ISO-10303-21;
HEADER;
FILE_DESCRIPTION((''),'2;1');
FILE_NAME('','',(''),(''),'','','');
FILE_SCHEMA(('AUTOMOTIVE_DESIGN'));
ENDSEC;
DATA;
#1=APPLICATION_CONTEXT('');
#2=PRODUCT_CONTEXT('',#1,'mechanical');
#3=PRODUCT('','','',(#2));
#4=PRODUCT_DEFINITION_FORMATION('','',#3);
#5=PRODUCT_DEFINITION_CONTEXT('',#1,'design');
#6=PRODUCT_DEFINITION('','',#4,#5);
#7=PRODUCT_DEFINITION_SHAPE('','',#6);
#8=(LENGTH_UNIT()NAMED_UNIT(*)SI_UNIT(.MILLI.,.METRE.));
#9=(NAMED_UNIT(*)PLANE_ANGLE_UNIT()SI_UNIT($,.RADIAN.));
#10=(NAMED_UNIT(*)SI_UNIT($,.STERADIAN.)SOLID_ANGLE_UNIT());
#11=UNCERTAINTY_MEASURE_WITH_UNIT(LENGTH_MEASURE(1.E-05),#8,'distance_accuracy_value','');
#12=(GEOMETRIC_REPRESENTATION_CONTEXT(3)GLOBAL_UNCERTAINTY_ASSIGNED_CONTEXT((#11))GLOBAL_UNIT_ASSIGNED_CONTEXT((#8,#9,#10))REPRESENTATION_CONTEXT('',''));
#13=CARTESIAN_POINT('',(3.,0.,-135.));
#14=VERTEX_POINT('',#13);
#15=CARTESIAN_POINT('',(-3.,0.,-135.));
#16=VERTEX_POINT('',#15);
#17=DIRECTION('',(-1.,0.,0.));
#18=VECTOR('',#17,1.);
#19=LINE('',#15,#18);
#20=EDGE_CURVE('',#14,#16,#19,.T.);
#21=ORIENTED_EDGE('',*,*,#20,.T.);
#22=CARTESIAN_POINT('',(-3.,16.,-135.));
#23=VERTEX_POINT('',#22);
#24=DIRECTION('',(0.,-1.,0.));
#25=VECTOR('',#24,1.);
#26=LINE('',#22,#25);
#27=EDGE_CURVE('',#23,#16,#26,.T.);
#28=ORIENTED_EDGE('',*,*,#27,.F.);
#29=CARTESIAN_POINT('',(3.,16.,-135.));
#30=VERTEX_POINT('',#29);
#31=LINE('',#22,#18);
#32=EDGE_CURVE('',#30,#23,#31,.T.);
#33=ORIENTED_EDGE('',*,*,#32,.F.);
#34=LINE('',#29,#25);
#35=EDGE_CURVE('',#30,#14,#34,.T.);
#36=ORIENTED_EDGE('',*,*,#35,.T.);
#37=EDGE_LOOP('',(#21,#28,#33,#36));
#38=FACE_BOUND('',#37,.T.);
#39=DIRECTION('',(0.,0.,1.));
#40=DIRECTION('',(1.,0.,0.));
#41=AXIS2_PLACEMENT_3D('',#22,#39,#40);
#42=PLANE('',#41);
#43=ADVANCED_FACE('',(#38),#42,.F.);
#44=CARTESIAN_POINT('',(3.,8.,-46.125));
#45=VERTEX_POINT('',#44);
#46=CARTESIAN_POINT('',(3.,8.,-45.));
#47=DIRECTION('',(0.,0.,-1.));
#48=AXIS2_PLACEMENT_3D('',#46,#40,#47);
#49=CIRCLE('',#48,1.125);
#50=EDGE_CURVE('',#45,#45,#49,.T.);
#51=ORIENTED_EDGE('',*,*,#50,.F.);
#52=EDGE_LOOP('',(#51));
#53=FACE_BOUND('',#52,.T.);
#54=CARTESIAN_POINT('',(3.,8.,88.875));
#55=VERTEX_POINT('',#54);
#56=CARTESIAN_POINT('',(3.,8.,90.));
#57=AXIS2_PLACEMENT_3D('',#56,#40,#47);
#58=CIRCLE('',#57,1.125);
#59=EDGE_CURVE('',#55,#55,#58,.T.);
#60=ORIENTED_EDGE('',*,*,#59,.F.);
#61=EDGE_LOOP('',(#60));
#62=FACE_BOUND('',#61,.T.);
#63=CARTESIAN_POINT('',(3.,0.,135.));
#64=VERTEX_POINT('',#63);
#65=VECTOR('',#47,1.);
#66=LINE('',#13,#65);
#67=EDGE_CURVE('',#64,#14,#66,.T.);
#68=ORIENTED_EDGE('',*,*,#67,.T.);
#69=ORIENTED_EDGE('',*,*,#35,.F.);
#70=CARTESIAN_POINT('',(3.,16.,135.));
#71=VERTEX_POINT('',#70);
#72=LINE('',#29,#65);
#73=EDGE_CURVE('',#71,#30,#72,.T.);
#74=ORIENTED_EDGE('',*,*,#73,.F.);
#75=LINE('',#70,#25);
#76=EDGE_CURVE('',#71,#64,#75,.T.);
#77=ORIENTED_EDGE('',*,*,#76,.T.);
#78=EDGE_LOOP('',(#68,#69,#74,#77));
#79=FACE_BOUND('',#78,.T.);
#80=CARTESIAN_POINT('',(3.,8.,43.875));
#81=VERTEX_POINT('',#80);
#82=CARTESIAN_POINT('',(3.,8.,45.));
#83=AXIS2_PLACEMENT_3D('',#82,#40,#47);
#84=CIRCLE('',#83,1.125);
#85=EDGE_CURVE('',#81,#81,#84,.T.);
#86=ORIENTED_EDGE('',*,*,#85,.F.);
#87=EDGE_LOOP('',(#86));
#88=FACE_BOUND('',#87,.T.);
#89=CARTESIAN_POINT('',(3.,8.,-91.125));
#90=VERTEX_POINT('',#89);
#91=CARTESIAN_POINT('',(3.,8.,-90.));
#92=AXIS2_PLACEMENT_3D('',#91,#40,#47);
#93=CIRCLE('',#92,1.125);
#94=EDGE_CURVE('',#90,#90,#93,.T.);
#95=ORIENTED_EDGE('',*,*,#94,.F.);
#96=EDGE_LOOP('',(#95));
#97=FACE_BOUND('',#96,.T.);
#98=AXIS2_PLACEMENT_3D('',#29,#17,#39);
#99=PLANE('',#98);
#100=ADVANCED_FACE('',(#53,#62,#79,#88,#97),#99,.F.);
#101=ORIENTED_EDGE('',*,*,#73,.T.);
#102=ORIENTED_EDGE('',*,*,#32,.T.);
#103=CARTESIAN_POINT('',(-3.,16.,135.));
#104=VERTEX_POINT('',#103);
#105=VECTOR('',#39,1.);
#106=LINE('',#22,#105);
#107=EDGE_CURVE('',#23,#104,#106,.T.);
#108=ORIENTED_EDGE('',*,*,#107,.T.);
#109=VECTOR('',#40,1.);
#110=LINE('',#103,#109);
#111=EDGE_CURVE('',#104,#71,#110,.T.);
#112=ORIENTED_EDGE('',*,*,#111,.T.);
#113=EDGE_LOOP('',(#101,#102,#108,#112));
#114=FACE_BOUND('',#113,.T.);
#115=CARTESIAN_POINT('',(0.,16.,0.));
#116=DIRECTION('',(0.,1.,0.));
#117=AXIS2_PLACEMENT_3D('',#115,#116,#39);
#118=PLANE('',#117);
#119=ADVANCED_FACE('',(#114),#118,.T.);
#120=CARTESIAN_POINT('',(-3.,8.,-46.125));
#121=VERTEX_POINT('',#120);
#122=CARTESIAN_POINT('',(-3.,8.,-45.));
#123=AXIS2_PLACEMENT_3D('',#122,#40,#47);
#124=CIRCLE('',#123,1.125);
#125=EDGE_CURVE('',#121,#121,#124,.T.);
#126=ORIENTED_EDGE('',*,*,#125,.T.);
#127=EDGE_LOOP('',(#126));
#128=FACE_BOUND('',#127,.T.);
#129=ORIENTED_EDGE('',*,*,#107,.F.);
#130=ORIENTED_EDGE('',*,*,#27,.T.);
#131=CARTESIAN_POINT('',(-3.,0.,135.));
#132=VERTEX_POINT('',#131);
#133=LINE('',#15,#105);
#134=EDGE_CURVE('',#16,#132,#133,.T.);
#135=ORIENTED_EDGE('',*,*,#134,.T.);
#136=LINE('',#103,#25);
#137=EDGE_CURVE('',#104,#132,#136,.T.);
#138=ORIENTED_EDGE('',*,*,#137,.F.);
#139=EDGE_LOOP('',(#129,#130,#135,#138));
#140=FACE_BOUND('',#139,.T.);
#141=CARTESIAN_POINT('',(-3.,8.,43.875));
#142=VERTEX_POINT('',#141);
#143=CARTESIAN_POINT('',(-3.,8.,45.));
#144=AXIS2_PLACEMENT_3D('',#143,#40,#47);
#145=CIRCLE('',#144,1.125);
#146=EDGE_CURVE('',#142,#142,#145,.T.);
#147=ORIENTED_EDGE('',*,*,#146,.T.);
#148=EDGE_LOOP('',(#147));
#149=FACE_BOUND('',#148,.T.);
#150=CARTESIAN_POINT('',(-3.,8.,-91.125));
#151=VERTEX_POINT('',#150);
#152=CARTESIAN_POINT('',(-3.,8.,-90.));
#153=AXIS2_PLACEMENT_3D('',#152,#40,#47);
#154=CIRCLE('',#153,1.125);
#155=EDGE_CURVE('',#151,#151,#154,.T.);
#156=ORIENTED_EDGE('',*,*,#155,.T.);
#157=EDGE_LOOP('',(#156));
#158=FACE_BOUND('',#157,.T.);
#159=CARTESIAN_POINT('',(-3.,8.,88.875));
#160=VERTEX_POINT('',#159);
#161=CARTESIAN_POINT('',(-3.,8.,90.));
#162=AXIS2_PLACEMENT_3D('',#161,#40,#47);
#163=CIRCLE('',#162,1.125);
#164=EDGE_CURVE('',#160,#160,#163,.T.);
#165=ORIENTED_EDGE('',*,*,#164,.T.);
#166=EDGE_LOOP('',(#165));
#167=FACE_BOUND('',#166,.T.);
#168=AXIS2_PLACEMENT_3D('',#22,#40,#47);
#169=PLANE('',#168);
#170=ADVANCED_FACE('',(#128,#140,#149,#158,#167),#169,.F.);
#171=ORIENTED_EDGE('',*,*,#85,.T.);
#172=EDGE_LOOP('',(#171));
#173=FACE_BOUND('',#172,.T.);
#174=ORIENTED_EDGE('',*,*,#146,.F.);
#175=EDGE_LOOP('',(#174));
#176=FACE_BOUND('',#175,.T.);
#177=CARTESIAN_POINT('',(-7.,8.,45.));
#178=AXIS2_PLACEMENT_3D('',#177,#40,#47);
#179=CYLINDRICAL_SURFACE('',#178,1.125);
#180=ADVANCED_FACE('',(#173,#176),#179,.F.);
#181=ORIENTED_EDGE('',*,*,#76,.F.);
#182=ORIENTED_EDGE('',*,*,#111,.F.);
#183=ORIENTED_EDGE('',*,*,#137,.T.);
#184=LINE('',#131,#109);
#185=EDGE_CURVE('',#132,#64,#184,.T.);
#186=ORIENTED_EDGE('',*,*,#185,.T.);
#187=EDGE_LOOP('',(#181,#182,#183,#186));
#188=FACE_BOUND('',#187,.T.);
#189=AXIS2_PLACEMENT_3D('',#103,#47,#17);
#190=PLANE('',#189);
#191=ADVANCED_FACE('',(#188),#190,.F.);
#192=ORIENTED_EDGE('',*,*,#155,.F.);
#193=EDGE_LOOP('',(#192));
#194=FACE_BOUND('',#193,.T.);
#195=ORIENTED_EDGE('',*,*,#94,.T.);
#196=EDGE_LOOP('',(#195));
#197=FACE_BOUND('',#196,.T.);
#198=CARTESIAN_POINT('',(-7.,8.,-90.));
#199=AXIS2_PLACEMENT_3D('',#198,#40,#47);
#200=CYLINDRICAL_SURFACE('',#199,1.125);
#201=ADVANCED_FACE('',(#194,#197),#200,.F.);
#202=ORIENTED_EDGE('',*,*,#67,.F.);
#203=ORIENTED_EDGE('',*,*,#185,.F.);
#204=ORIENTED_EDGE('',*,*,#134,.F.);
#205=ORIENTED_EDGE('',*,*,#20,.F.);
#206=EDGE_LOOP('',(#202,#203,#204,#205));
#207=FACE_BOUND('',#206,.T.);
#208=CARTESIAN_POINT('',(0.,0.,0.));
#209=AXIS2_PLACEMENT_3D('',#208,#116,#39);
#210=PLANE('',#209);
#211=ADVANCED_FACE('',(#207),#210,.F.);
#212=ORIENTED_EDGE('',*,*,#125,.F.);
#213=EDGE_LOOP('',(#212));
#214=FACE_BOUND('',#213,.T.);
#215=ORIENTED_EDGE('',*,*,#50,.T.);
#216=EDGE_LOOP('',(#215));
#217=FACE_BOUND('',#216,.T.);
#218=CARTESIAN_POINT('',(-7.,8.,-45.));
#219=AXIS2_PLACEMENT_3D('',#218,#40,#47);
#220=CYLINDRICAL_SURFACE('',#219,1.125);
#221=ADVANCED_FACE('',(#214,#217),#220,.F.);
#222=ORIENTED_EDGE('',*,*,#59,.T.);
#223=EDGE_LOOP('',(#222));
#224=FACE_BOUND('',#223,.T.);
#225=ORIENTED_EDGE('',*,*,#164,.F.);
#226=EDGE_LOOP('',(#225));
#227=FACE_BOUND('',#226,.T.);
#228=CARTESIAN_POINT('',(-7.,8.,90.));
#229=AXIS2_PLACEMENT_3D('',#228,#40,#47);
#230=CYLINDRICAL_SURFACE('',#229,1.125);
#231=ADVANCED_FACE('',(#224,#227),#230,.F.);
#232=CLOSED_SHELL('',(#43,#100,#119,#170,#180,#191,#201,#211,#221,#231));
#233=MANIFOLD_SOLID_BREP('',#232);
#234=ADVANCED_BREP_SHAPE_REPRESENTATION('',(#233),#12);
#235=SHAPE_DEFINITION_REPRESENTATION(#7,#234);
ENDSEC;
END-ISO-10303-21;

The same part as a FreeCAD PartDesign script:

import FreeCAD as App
import Part
import Sketcher
from FreeCAD import Vector


def add_polygon(sketch, points):
    """Adds a closed chain of lines whose ends are joined by coincident constraints."""
    first, n = sketch.GeometryCount, len(points)
    for a, b in zip(points, points[1:] + points[:1]):
        sketch.addGeometry(Part.LineSegment(App.Vector(*a, 0), App.Vector(*b, 0)), False)
    for i in range(n):
        sketch.addConstraint(Sketcher.Constraint("Coincident", first + i, 2, first + (i + 1) % n, 1))

doc = App.newDocument("Part")
body = doc.addObject("PartDesign::Body", "Body")

# Sketch on XZ plane
sketch1 = doc.addObject("Sketcher::SketchObject", "Sketch")
body.addObject(sketch1)
sketch1.AttachmentSupport = (doc.XZ_Plane, [""])
sketch1.MapMode = "FlatFace"
add_polygon(sketch1, [(-3, -135), (-3, 135), (3, 135), (3, -135)])  # lines 0-3
sketch1.addConstraint([
    Sketcher.Constraint("Vertical", 0),
    Sketcher.Constraint("Horizontal", 1),
    Sketcher.Constraint("Vertical", 2),
    Sketcher.Constraint("Horizontal", 3),
    Sketcher.Constraint("Symmetric", 0, 2, 2, 2, -1, 1),
    Sketcher.Constraint("DistanceX", 1, 1, 1, 2, 6.0),
    Sketcher.Constraint("DistanceY", 0, 1, 0, 2, 270.0),
])
pad1 = doc.addObject("PartDesign::Pad", "Pad")
body.addObject(pad1)
pad1.Profile = sketch1
pad1.Length = 16
pad1.Reversed = True

# Sketch on YZ plane
sketch2 = doc.addObject("Sketcher::SketchObject", "Sketch001")
body.addObject(sketch2)
sketch2.AttachmentSupport = (doc.YZ_Plane, [""])
sketch2.MapMode = "FlatFace"
sketch2.AttachmentOffset = App.Placement(Vector(0, 0, 3), App.Rotation())
sketch2.addGeometry([
    Part.Circle(Vector(8, 90, 0), Vector(0, 0, 1), 1.1),
    Part.Circle(Vector(8, -90, 0), Vector(0, 0, 1), 1.1),
    Part.Circle(Vector(8, 45, 0), Vector(0, 0, 1), 1.1),
    Part.Circle(Vector(8, -45, 0), Vector(0, 0, 1), 1.1),
], False)
sketch2.addConstraint([
    Sketcher.Constraint("Equal", 0, 1),
    Sketcher.Constraint("Equal", 1, 2),
    Sketcher.Constraint("Equal", 2, 3),
    Sketcher.Constraint("Symmetric", 0, 3, 1, 3, -1),
    Sketcher.Constraint("Symmetric", 2, 3, 3, 3, -1),
    Sketcher.Constraint("Vertical", 1, 3, 2, 3),
    Sketcher.Constraint("Diameter", 0, 2.25),
    Sketcher.Constraint("DistanceX", -1, 1, 0, 3, 8.0),
    Sketcher.Constraint("DistanceY", -1, 1, 0, 3, 90.0),
    Sketcher.Constraint("DistanceY", -1, 1, 2, 3, 45.0),
])
pocket1 = doc.addObject("PartDesign::Pocket", "Pocket")
body.addObject(pocket1)
pocket1.Profile = sketch2
pocket1.Length = 10

doc.recompute()
